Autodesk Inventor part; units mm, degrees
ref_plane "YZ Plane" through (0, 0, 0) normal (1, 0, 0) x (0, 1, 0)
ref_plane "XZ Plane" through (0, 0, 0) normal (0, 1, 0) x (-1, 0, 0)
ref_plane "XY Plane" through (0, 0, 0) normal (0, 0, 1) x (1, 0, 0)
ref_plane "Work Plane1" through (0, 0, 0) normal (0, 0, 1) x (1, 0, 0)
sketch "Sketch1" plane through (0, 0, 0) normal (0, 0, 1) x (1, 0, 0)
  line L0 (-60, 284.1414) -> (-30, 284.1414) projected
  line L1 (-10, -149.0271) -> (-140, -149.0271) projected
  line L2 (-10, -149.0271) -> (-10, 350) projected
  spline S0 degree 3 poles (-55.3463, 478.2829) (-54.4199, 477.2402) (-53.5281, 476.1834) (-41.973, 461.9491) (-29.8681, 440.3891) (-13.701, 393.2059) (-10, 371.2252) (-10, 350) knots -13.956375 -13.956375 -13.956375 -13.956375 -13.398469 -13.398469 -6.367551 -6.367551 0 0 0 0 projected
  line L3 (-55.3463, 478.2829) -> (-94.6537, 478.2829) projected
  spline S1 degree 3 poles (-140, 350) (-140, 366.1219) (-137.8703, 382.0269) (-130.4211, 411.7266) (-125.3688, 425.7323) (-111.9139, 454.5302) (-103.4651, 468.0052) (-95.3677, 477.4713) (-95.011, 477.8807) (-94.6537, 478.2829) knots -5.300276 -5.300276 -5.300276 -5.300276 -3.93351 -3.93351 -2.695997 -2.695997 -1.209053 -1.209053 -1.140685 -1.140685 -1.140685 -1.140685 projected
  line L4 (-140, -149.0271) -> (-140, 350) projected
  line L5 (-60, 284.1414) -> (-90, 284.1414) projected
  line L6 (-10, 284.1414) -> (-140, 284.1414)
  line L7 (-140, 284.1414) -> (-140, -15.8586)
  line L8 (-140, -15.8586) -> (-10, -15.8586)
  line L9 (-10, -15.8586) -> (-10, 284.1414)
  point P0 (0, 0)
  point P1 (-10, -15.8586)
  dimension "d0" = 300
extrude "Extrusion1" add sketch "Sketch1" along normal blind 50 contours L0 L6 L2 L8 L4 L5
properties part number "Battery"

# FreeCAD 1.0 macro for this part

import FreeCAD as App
import Part
import Sketcher
from FreeCAD import Vector
Q = App.Units.Quantity

doc = App.newDocument("Part")
body = doc.addObject("PartDesign::Body", "Body")

sketch1 = doc.addObject("Sketcher::SketchObject", "Sketch")
body.addObject(sketch1)
sketch1.AttachmentSupport = (doc.XY_Plane, [""])
sketch1.MapMode = "FlatFace"
sketch1.addGeometry([
    Part.LineSegment(Vector(-10, 284, 0), Vector(-140, 284, 0)),
    Part.LineSegment(Vector(-140, 284, 0), Vector(-140, -16, 0)),
    Part.LineSegment(Vector(-140, -16, 0), Vector(-10, -16, 0)),
    Part.LineSegment(Vector(-10, -16, 0), Vector(-10, 284, 0)),
], False)
sketch1.addConstraint([
    Sketcher.Constraint("Coincident", 0, 2, 1, 1),
    Sketcher.Constraint("Coincident", 1, 2, 2, 1),
    Sketcher.Constraint("Coincident", 2, 2, 3, 1),
    Sketcher.Constraint("Coincident", 3, 2, 0, 1),
    Sketcher.Constraint("Horizontal", 0),
    Sketcher.Constraint("Vertical", 1),
    Sketcher.Constraint("Horizontal", 2),
    Sketcher.Constraint("Vertical", 3),
    Sketcher.Constraint("DistanceY", 1, 2, 1, 1, Q("300 mm")),
    Sketcher.Constraint("DistanceX", 0, 2, 0, 1, Q("130 mm")),
    Sketcher.Constraint("DistanceX", 0, 2, -1, 1, Q("140 mm")),
    Sketcher.Constraint("DistanceY", -1, 1, 0, 2, Q("284.1414 mm")),
])
pad1 = doc.addObject("PartDesign::Pad", "Pad")
body.addObject(pad1)
pad1.Profile = sketch1
pad1.Length = 50

doc.recompute()
